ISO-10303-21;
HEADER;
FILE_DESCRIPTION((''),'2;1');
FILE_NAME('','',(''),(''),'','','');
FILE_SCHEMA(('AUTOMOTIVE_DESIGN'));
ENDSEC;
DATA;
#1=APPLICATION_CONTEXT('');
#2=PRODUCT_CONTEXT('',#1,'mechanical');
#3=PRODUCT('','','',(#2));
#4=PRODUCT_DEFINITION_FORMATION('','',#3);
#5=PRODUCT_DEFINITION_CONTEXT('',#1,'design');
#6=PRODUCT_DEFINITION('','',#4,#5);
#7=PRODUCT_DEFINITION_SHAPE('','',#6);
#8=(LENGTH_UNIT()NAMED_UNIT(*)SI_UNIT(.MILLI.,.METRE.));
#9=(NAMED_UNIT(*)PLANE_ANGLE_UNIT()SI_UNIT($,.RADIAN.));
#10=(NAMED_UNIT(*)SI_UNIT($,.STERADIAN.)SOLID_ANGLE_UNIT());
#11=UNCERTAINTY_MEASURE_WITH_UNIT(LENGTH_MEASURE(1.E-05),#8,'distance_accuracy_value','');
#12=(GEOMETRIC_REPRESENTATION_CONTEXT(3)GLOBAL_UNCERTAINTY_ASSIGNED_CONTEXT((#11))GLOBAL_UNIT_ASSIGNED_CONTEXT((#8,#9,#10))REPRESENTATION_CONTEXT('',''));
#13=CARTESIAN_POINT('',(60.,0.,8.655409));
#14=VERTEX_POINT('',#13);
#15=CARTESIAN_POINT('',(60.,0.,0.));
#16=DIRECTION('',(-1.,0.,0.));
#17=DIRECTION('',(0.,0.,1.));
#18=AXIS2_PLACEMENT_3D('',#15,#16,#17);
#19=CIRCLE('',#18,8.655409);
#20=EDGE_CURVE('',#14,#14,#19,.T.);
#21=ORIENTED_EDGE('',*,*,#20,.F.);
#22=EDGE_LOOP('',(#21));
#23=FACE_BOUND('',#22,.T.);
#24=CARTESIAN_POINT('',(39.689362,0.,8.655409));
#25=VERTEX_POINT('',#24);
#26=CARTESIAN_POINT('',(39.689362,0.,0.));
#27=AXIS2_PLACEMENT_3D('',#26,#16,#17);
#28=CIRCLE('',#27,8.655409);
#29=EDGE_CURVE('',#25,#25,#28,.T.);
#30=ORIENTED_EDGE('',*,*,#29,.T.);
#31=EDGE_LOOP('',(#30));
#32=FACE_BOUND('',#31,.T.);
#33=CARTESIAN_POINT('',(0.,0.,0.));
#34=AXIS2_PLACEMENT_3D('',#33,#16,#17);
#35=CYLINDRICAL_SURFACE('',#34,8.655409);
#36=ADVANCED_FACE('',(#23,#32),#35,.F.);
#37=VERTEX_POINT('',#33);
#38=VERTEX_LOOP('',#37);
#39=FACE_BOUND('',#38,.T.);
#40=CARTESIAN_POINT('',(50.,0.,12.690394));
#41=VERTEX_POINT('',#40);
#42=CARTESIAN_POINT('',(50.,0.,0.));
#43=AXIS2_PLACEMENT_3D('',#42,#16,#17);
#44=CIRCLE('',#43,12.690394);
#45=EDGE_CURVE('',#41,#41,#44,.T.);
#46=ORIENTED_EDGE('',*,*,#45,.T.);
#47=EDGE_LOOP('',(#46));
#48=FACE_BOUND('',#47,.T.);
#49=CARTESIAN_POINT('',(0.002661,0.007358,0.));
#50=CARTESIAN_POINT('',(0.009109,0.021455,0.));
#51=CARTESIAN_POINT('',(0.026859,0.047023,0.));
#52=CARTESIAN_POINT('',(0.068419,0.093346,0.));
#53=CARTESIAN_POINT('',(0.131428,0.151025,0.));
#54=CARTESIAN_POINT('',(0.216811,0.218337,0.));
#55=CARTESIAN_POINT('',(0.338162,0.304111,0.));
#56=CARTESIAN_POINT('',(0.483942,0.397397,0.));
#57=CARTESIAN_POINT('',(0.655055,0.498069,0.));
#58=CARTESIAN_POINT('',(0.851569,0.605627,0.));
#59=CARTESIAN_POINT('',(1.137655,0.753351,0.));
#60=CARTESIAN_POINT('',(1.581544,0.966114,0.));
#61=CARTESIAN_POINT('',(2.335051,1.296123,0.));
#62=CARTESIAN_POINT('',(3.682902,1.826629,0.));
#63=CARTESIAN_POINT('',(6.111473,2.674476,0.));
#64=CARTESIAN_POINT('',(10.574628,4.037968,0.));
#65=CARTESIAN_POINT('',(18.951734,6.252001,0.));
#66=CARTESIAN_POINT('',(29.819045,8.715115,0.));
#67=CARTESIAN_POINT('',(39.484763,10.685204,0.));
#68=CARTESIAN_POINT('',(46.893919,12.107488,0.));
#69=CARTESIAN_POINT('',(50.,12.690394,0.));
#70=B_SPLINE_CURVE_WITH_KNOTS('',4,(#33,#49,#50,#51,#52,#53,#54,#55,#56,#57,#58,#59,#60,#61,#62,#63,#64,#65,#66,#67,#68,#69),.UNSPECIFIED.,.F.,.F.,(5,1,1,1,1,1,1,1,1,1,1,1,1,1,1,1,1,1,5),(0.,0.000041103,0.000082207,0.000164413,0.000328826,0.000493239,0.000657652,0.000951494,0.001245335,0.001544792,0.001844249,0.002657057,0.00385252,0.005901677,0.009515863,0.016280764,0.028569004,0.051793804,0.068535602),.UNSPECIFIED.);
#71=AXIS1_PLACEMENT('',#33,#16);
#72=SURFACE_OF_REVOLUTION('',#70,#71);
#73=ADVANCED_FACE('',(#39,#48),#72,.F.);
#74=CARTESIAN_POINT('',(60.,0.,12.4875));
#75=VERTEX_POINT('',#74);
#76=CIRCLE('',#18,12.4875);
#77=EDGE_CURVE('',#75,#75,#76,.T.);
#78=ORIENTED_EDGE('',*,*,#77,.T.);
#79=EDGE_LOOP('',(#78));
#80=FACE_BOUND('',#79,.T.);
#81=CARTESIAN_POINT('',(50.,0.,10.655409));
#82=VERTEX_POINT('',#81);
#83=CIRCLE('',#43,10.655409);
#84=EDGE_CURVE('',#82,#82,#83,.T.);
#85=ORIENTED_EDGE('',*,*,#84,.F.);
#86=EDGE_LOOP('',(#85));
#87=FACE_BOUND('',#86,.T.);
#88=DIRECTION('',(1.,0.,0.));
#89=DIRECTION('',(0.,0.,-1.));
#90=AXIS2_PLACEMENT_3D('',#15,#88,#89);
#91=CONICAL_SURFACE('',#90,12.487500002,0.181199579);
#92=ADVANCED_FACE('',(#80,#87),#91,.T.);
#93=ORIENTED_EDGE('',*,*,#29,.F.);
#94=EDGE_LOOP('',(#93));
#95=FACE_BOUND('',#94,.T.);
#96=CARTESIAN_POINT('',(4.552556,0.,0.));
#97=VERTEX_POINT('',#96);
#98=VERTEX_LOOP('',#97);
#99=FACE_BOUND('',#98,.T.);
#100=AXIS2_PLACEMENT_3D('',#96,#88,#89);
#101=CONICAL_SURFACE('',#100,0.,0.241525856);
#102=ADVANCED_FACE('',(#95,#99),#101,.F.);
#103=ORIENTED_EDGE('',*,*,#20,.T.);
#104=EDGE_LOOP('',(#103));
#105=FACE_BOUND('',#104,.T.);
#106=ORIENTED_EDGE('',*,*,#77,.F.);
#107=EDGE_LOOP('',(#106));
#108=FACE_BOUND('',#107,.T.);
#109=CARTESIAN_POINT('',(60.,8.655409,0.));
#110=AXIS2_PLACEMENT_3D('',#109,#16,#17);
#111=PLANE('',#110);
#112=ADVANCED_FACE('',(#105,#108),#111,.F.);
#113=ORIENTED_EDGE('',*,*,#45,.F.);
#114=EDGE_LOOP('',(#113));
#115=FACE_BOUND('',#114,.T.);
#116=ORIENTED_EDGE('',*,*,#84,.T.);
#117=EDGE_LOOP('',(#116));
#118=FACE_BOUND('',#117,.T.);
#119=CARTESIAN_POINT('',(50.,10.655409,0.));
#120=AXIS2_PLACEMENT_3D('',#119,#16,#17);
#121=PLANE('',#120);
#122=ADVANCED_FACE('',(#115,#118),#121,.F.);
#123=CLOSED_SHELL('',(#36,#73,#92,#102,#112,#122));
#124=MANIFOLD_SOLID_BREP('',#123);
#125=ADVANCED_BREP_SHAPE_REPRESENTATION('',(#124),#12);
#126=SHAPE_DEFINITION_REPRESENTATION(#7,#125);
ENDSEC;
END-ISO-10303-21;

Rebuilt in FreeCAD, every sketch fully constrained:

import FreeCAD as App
import Part
import Sketcher

V = App.Vector

doc = App.newDocument("Part")
body = doc.addObject("PartDesign::Body", "Body")

# Sketch on XY plane
sketch1 = body.newObject("Sketcher::SketchObject", "Sketch")
sketch1.AttachmentSupport = (doc.getObject("XY_Plane"), [""])
sketch1.MapMode = "FlatFace"
sketch1.addGeometry([
    Part.LineSegment(V(60, 8.655409, 0), V(60, 12.4875, 0)),  # 0
    Part.LineSegment(V(60, 12.4875, 0), V(50, 10.655409, 0)),  # 1
    Part.LineSegment(V(50, 10.655409, 0), V(50, 12.690394, 0)),  # 2
    Part.BSplineCurve([V(0, 0, 0), V(0.002661, 0.007358, 0), V(0.009109, 0.021455, 0), V(0.026859, 0.047023, 0), V(0.068419, 0.093346, 0), V(0.131428, 0.151025, 0), V(0.216811, 0.218337, 0), V(0.338162, 0.304111, 0), V(0.483942, 0.397397, 0), V(0.655055, 0.498069, 0), V(0.851569, 0.605627, 0), V(1.137655, 0.753351, 0), V(1.581544, 0.966114, 0), V(2.335051, 1.296123, 0), V(3.682902, 1.826629, 0), V(6.111473, 2.674476, 0), V(10.574628, 4.037968, 0), V(18.951734, 6.252001, 0), V(29.819045, 8.715115, 0), V(39.484763, 10.685204, 0), V(46.893919, 12.107488, 0), V(50, 12.690394, 0)], [5, 1, 1, 1, 1, 1, 1, 1, 1, 1, 1, 1, 1, 1, 1, 1, 1, 1, 5], [0, 0.000041103, 0.000082207, 0.000164413, 0.000328826, 0.000493239, 0.000657652, 0.000951494, 0.001245335, 0.001544792, 0.001844249, 0.002657057, 0.00385252, 0.005901677, 0.009515863, 0.016280764, 0.028569004, 0.051793804, 0.068535602], False, 4, [1, 1, 1, 1, 1, 1, 1, 1, 1, 1, 1, 1, 1, 1, 1, 1, 1, 1, 1, 1, 1, 1], False),  # 3
    Part.LineSegment(V(0, 0, 0), V(4.552556, 0, 0)),  # 4
    Part.LineSegment(V(4.552556, 0, 0), V(39.689362, 8.655409, 0)),  # 5
    Part.LineSegment(V(39.689362, 8.655409, 0), V(60, 8.655409, 0)),  # 6
], False)
sketch1.addConstraint([
    Sketcher.Constraint("Block", 3),
    Sketcher.Constraint("Coincident", 0, 2, 1, 1),
    Sketcher.Constraint("Coincident", 1, 2, 2, 1),
    Sketcher.Constraint("Coincident", 2, 2, 3, 2),
    Sketcher.Constraint("Coincident", 3, 1, 4, 1),
    Sketcher.Constraint("Coincident", 4, 2, 5, 1),
    Sketcher.Constraint("Coincident", 5, 2, 6, 1),
    Sketcher.Constraint("Coincident", 6, 2, 0, 1),
    Sketcher.Constraint("Vertical", 0),
    Sketcher.Constraint("Vertical", 2),
    Sketcher.Constraint("Horizontal", 4),
    Sketcher.Constraint("Horizontal", 6),
    Sketcher.Constraint("DistanceX", -1, 1, 0, 2, 60.0),
    Sketcher.Constraint("DistanceY", 5, 2, 1, 2, 2.0),
    Sketcher.Constraint("DistanceX", 6, 1, 6, 2, 20.310638),
    Sketcher.Constraint("DistanceY", 0, 1, 0, 2, 3.832091),
    Sketcher.Constraint("DistanceY", -1, 1, 0, 2, 12.4875),
    Sketcher.Constraint("Distance", 5, 36.18717),
])
revolution = body.newObject("PartDesign::Revolution", "Revolution")
revolution.Profile = sketch1
revolution.ReferenceAxis = (sketch1, ["H_Axis"])
revolution.Angle = 360

doc.recompute()
